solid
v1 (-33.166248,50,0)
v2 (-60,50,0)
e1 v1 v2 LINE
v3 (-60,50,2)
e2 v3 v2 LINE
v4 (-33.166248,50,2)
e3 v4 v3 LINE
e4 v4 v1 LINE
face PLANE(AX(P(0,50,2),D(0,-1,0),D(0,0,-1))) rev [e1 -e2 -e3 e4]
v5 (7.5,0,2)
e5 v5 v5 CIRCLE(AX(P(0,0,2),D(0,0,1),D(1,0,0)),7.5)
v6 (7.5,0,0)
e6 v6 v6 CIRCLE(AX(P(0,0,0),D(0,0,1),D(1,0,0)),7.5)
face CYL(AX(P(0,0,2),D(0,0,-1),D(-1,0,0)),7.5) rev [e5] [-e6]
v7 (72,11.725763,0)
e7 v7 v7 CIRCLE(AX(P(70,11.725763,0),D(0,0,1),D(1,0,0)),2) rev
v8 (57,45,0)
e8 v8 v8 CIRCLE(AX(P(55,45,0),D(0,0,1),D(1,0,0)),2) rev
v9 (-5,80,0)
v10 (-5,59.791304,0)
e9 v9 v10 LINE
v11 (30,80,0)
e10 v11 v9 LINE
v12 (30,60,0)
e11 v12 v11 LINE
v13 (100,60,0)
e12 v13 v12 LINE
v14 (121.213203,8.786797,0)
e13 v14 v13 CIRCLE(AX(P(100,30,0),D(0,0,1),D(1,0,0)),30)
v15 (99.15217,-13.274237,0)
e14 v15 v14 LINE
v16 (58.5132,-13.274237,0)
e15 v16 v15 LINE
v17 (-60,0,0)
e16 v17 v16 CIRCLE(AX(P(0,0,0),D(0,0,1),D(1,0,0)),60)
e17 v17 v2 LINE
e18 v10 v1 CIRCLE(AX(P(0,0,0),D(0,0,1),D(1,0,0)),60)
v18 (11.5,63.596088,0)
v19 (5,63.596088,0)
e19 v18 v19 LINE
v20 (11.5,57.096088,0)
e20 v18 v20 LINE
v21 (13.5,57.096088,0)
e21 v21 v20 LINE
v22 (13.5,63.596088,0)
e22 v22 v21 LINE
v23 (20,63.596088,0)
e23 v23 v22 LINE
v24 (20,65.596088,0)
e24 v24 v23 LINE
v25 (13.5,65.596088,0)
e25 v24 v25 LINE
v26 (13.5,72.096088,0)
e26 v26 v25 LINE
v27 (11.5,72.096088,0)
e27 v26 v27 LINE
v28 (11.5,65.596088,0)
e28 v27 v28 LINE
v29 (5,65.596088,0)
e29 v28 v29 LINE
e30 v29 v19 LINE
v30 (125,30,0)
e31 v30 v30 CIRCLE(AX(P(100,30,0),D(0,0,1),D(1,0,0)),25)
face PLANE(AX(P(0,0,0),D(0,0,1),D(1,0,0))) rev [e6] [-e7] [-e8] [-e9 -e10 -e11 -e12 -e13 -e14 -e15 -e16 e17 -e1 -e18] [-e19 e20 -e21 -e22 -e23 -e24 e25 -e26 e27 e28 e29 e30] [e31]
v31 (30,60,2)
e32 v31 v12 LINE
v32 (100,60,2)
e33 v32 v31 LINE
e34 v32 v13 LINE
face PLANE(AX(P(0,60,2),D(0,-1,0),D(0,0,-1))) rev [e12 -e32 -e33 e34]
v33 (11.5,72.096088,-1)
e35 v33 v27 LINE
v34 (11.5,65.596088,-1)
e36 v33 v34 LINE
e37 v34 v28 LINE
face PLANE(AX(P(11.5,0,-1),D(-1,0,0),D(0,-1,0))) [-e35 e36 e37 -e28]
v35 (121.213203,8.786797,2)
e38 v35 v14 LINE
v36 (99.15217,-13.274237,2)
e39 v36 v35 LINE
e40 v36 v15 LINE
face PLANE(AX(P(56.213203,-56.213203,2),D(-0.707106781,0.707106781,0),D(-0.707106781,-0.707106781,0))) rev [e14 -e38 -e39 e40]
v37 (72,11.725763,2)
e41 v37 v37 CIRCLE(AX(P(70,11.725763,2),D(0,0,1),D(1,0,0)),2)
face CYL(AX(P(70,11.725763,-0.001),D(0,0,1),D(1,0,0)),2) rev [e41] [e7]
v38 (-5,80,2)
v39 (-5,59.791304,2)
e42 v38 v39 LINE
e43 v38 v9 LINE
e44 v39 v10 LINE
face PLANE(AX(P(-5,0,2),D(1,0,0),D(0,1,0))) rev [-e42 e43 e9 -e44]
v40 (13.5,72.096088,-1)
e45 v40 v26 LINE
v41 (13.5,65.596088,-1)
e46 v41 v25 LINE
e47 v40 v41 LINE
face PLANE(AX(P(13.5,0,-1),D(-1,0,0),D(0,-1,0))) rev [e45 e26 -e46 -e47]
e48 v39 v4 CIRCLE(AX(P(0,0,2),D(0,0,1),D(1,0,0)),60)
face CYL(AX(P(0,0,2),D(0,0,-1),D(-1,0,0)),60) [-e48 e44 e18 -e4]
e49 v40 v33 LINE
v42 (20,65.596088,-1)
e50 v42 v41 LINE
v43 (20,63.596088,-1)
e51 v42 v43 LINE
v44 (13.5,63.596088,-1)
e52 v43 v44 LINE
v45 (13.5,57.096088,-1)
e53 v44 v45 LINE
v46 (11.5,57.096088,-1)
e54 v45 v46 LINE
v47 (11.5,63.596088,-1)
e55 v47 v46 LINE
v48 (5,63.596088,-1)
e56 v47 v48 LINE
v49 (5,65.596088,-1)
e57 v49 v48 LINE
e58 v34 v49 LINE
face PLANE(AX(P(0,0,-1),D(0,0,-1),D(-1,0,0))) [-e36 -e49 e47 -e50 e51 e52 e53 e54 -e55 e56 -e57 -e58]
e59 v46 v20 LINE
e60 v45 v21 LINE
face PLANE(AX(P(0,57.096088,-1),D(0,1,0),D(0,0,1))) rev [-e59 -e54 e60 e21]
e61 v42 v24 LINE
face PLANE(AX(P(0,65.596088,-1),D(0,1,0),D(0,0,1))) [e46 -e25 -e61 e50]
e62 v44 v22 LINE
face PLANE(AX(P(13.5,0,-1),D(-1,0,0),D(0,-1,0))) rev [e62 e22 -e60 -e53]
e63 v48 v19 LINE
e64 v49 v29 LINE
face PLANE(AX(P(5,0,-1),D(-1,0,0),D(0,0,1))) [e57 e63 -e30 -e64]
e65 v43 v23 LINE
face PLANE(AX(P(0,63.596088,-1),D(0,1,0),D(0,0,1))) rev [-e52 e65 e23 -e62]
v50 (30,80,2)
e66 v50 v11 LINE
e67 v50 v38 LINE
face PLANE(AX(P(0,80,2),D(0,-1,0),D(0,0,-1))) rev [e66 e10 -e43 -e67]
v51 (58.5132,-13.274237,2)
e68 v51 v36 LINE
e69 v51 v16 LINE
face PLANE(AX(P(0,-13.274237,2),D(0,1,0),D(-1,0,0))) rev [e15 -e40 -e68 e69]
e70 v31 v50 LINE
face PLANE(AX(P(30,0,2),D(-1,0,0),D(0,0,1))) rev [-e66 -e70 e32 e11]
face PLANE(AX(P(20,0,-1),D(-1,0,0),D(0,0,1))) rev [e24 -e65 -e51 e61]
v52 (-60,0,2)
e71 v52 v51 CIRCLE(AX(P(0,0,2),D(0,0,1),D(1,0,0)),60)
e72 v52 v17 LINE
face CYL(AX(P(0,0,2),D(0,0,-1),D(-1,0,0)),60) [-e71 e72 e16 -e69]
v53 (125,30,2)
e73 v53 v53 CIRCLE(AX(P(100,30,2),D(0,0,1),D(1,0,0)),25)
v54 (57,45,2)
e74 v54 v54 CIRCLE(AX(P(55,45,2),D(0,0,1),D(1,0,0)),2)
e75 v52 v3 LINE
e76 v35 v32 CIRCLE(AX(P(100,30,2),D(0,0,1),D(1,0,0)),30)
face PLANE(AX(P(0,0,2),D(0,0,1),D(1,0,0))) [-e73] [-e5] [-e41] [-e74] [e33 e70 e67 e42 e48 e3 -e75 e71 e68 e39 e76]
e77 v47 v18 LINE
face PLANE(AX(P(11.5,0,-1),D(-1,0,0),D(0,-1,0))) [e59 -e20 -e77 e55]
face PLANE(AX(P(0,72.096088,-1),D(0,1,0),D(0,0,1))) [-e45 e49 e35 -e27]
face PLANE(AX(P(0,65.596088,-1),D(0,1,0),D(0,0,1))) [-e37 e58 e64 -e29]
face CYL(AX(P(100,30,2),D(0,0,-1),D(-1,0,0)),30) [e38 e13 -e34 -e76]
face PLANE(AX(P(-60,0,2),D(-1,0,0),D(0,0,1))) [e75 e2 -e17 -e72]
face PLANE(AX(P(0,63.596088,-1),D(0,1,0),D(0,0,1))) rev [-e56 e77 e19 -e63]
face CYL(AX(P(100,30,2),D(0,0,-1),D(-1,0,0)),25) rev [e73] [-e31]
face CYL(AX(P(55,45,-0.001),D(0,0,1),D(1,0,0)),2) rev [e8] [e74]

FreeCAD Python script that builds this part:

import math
import FreeCAD as App
import Part
import Sketcher
Q = App.Units.Quantity

doc = App.newDocument("Part")
body = doc.addObject("PartDesign::Body", "Body")

sketch1 = doc.addObject("Sketcher::SketchObject", "Sketch")
body.addObject(sketch1)
sketch1.AttachmentSupport = (doc.XY_Plane, [""])
sketch1.MapMode = "FlatFace"
sketch1.addGeometry(Part.LineSegment(App.Vector(-33.166248, 50, 0), App.Vector(-60, 50, 0)), False)
sketch1.addGeometry(Part.LineSegment(App.Vector(-60, 50, 0), App.Vector(-60, 0, 0)), False)
sketch1.addGeometry(Part.ArcOfCircle(Part.Circle(App.Vector(0, 0, 0), App.Vector(0, 0, 1), 60), math.radians(180), math.radians(347.218285)), False)
sketch1.addGeometry(Part.LineSegment(App.Vector(58.5132, -13.274237, 0), App.Vector(99.15217, -13.274237, 0)), False)
sketch1.addGeometry(Part.LineSegment(App.Vector(99.15217, -13.274237, 0), App.Vector(121.213203, 8.786797, 0)), False)
sketch1.addGeometry(Part.ArcOfCircle(Part.Circle(App.Vector(100, 30, 0), App.Vector(0, 0, 1), 30), math.radians(-45), math.radians(90)), False)
sketch1.addGeometry(Part.LineSegment(App.Vector(100, 60, 0), App.Vector(0, 60, 0)), False)
sketch1.addGeometry(Part.ArcOfCircle(Part.Circle(App.Vector(0, 0, 0), App.Vector(0, 0, 1), 60), math.radians(90), math.radians(123.55731)), False)
sketch1.addGeometry(Part.Circle(App.Vector(100, 30, 0), App.Vector(0, 0, 1), 25), False)
sketch1.addGeometry(Part.Circle(App.Vector(0, 0, 0), App.Vector(0, 0, 1), 7.5), False)
sketch1.addConstraint(Sketcher.Constraint("Coincident", 0, 2, 1, 1))
sketch1.addConstraint(Sketcher.Constraint("Tangent", 1, 2, 2, 1))
sketch1.addConstraint(Sketcher.Constraint("Coincident", 2, 2, 3, 1))
sketch1.addConstraint(Sketcher.Constraint("Coincident", 3, 2, 4, 1))
sketch1.addConstraint(Sketcher.Constraint("Tangent", 4, 2, 5, 1))
sketch1.addConstraint(Sketcher.Constraint("Tangent", 5, 2, 6, 1))
sketch1.addConstraint(Sketcher.Constraint("Tangent", 6, 2, 7, 1))
sketch1.addConstraint(Sketcher.Constraint("Coincident", 7, 2, 0, 1))
sketch1.addConstraint(Sketcher.Constraint("Horizontal", 0))
sketch1.addConstraint(Sketcher.Constraint("Vertical", 1))
sketch1.addConstraint(Sketcher.Constraint("Horizontal", 3))
sketch1.addConstraint(Sketcher.Constraint("Horizontal", 6))
sketch1.addConstraint(Sketcher.Constraint("Coincident", 2, 3, -1, 1))
sketch1.addConstraint(Sketcher.Constraint("Coincident", 7, 3, -1, 1))
sketch1.addConstraint(Sketcher.Constraint("Coincident", 9, 3, -1, 1))
sketch1.addConstraint(Sketcher.Constraint("Coincident", 8, 3, 5, 3))
sketch1.addConstraint(Sketcher.Constraint("Equal", 2, 7))
sketch1.addConstraint(Sketcher.Constraint("Diameter", 8, 50.0))
sketch1.addConstraint(Sketcher.Constraint("Diameter", 9, 15.0))
sketch1.addConstraint(Sketcher.Constraint("Radius", 2, 60.0))
sketch1.addConstraint(Sketcher.Constraint("Radius", 5, 30.0))
sketch1.addConstraint(Sketcher.Constraint("DistanceX", 6, 2, 6, 1, 100.0))
sketch1.addConstraint(Sketcher.Constraint("DistanceY", 1, 2, 1, 1, 50.0))
sketch1.addConstraint(Sketcher.Constraint("Angle", 4, Q("45 deg")))
sketch1.addConstraint(Sketcher.Constraint("DistanceX", 3, 1, 3, 2, 40.638969))
pad1 = doc.addObject("PartDesign::Pad", "Pad")
body.addObject(pad1)
pad1.Profile = sketch1
pad1.Length = 2

sketch2 = doc.addObject("Sketcher::SketchObject", "Sketch001")
body.addObject(sketch2)
sketch2.AttachmentSupport = (doc.XY_Plane, [""])
sketch2.MapMode = "FlatFace"
sketch2.AttachmentOffset = App.Placement(App.Vector(0, 0, 2), App.Rotation())
sketch2.addGeometry(Part.Circle(App.Vector(55, 45, 0), App.Vector(0, 0, 1), 2), False)
sketch2.addConstraint(Sketcher.Constraint("Diameter", 0, 4.0))
sketch2.addConstraint(Sketcher.Constraint("DistanceX", -1, 1, 0, 3, 55.0))
sketch2.addConstraint(Sketcher.Constraint("DistanceY", -1, 1, 0, 3, 45.0))
pocket1 = doc.addObject("PartDesign::Pocket", "Pocket")
body.addObject(pocket1)
pocket1.Profile = sketch2
pocket1.Type = "UpToFirst"

sketch3 = doc.addObject("Sketcher::SketchObject", "Sketch002")
body.addObject(sketch3)
sketch3.AttachmentSupport = (doc.XY_Plane, [""])
sketch3.MapMode = "FlatFace"
sketch3.AttachmentOffset = App.Placement(App.Vector(0, 0, 2), App.Rotation())
sketch3.addGeometry(Part.Circle(App.Vector(70, 11.725763, 0), App.Vector(0, 0, 1), 2), False)
sketch3.addConstraint(Sketcher.Constraint("Diameter", 0, 4.0))
sketch3.addConstraint(Sketcher.Constraint("DistanceX", -1, 1, 0, 3, 70.0))
sketch3.addConstraint(Sketcher.Constraint("DistanceY", -1, 1, 0, 3, 11.725763))
pocket2 = doc.addObject("PartDesign::Pocket", "Pocket001")
body.addObject(pocket2)
pocket2.Profile = sketch3
pocket2.Type = "UpToFirst"

sketch4 = doc.addObject("Sketcher::SketchObject", "Sketch003")
body.addObject(sketch4)
sketch4.AttachmentSupport = (doc.XY_Plane, [""])
sketch4.MapMode = "FlatFace"
sketch4.addGeometry(Part.LineSegment(App.Vector(30, 80, 0), App.Vector(30, 60, 0)), False)
sketch4.addGeometry(Part.LineSegment(App.Vector(30, 60, 0), App.Vector(0, 60, 0)), False)
sketch4.addGeometry(Part.ArcOfCircle(Part.Circle(App.Vector(0, 0.000001, 0), App.Vector(0, 0, 1), 59.999999), math.radians(90), math.radians(94.780192)), False)
sketch4.addGeometry(Part.LineSegment(App.Vector(-5, 59.791304, 0), App.Vector(-5, 80, 0)), False)
sketch4.addGeometry(Part.LineSegment(App.Vector(-5, 80, 0), App.Vector(30, 80, 0)), False)
sketch4.addConstraint(Sketcher.Constraint("Coincident", 0, 2, 1, 1))
sketch4.addConstraint(Sketcher.Constraint("Tangent", 1, 2, 2, 1))
sketch4.addConstraint(Sketcher.Constraint("Coincident", 2, 2, 3, 1))
sketch4.addConstraint(Sketcher.Constraint("Coincident", 3, 2, 4, 1))
sketch4.addConstraint(Sketcher.Constraint("Coincident", 4, 2, 0, 1))
sketch4.addConstraint(Sketcher.Constraint("Vertical", 0))
sketch4.addConstraint(Sketcher.Constraint("Horizontal", 1))
sketch4.addConstraint(Sketcher.Constraint("Vertical", 3))
sketch4.addConstraint(Sketcher.Constraint("Horizontal", 4))
sketch4.addConstraint(Sketcher.Constraint("Coincident", 2, 3, -1, 1))
sketch4.addConstraint(Sketcher.Constraint("Radius", 2, 59.999999))
sketch4.addConstraint(Sketcher.Constraint("DistanceX", 1, 2, 1, 1, 30.0))
sketch4.addConstraint(Sketcher.Constraint("DistanceX", 4, 1, 4, 2, 35.0))
sketch4.addConstraint(Sketcher.Constraint("DistanceY", 0, 2, 0, 1, 20.0))
pad2 = doc.addObject("PartDesign::Pad", "Pad001")
body.addObject(pad2)
pad2.Profile = sketch4
pad2.Length = 2

sketch5 = doc.addObject("Sketcher::SketchObject", "Sketch004")
body.addObject(sketch5)
sketch5.AttachmentSupport = (doc.XY_Plane, [""])
sketch5.MapMode = "FlatFace"
sketch5.addGeometry(Part.LineSegment(App.Vector(13.5, 72.096088, 0), App.Vector(13.5, 65.596088, 0)), False)
sketch5.addGeometry(Part.LineSegment(App.Vector(13.5, 65.596088, 0), App.Vector(20, 65.596088, 0)), False)
sketch5.addGeometry(Part.LineSegment(App.Vector(20, 65.596088, 0), App.Vector(20, 63.596088, 0)), False)
sketch5.addGeometry(Part.LineSegment(App.Vector(20, 63.596088, 0), App.Vector(13.5, 63.596088, 0)), False)
sketch5.addGeometry(Part.LineSegment(App.Vector(13.5, 63.596088, 0), App.Vector(13.5, 57.096088, 0)), False)
sketch5.addGeometry(Part.LineSegment(App.Vector(13.5, 57.096088, 0), App.Vector(11.5, 57.096088, 0)), False)
sketch5.addGeometry(Part.LineSegment(App.Vector(11.5, 57.096088, 0), App.Vector(11.5, 63.596088, 0)), False)
sketch5.addGeometry(Part.LineSegment(App.Vector(11.5, 63.596088, 0), App.Vector(5, 63.596088, 0)), False)
sketch5.addGeometry(Part.LineSegment(App.Vector(5, 63.596088, 0), App.Vector(5, 65.596088, 0)), False)
sketch5.addGeometry(Part.LineSegment(App.Vector(5, 65.596088, 0), App.Vector(11.5, 65.596088, 0)), False)
sketch5.addGeometry(Part.LineSegment(App.Vector(11.5, 65.596088, 0), App.Vector(11.5, 72.096088, 0)), False)
sketch5.addGeometry(Part.LineSegment(App.Vector(11.5, 72.096088, 0), App.Vector(13.5, 72.096088, 0)), False)
sketch5.addConstraint(Sketcher.Constraint("Coincident", 0, 2, 1, 1))
sketch5.addConstraint(Sketcher.Constraint("Coincident", 1, 2, 2, 1))
sketch5.addConstraint(Sketcher.Constraint("Coincident", 2, 2, 3, 1))
sketch5.addConstraint(Sketcher.Constraint("Coincident", 3, 2, 4, 1))
sketch5.addConstraint(Sketcher.Constraint("Coincident", 4, 2, 5, 1))
sketch5.addConstraint(Sketcher.Constraint("Coincident", 5, 2, 6, 1))
sketch5.addConstraint(Sketcher.Constraint("Coincident", 6, 2, 7, 1))
sketch5.addConstraint(Sketcher.Constraint("Coincident", 7, 2, 8, 1))
sketch5.addConstraint(Sketcher.Constraint("Coincident", 8, 2, 9, 1))
sketch5.addConstraint(Sketcher.Constraint("Coincident", 9, 2, 10, 1))
sketch5.addConstraint(Sketcher.Constraint("Coincident", 10, 2, 11, 1))
sketch5.addConstraint(Sketcher.Constraint("Coincident", 11, 2, 0, 1))
sketch5.addConstraint(Sketcher.Constraint("Vertical", 0))
sketch5.addConstraint(Sketcher.Constraint("Horizontal", 1))
sketch5.addConstraint(Sketcher.Constraint("Vertical", 2))
sketch5.addConstraint(Sketcher.Constraint("Horizontal", 3))
sketch5.addConstraint(Sketcher.Constraint("Vertical", 4))
sketch5.addConstraint(Sketcher.Constraint("Horizontal", 5))
sketch5.addConstraint(Sketcher.Constraint("Vertical", 6))
sketch5.addConstraint(Sketcher.Constraint("Horizontal", 7))
sketch5.addConstraint(Sketcher.Constraint("Vertical", 8))
sketch5.addConstraint(Sketcher.Constraint("Horizontal", 9))
sketch5.addConstraint(Sketcher.Constraint("Vertical", 10))
sketch5.addConstraint(Sketcher.Constraint("Horizontal", 11))
sketch5.addConstraint(Sketcher.Constraint("Horizontal", 3, 2, 6, 2))
sketch5.addConstraint(Sketcher.Constraint("Horizontal", 1, 2, 8, 2))
sketch5.addConstraint(Sketcher.Constraint("Vertical", 0, 2, 3, 2))
sketch5.addConstraint(Sketcher.Constraint("Vertical", 6, 2, 9, 2))
sketch5.addConstraint(Sketcher.Constraint("Equal", 3, 7))
sketch5.addConstraint(Sketcher.Constraint("Equal", 9, 0))
sketch5.addConstraint(Sketcher.Constraint("Equal", 11, 2))
sketch5.addConstraint(Sketcher.Constraint("Equal", 0, 4))
sketch5.addConstraint(Sketcher.Constraint("DistanceX", 5, 2, 5, 1, 2.0))
sketch5.addConstraint(Sketcher.Constraint("DistanceX", 1, 1, 1, 2, 6.5))
sketch5.addConstraint(Sketcher.Constraint("DistanceX", -1, 1, 1, 2, 20.0))
sketch5.addConstraint(Sketcher.Constraint("DistanceY", -1, 1, 0, 2, 65.596088))
pad3 = doc.addObject("PartDesign::Pad", "Pad002")
body.addObject(pad3)
pad3.Profile = sketch5
pad3.Length = 1
pad3.Reversed = True

doc.recompute()
